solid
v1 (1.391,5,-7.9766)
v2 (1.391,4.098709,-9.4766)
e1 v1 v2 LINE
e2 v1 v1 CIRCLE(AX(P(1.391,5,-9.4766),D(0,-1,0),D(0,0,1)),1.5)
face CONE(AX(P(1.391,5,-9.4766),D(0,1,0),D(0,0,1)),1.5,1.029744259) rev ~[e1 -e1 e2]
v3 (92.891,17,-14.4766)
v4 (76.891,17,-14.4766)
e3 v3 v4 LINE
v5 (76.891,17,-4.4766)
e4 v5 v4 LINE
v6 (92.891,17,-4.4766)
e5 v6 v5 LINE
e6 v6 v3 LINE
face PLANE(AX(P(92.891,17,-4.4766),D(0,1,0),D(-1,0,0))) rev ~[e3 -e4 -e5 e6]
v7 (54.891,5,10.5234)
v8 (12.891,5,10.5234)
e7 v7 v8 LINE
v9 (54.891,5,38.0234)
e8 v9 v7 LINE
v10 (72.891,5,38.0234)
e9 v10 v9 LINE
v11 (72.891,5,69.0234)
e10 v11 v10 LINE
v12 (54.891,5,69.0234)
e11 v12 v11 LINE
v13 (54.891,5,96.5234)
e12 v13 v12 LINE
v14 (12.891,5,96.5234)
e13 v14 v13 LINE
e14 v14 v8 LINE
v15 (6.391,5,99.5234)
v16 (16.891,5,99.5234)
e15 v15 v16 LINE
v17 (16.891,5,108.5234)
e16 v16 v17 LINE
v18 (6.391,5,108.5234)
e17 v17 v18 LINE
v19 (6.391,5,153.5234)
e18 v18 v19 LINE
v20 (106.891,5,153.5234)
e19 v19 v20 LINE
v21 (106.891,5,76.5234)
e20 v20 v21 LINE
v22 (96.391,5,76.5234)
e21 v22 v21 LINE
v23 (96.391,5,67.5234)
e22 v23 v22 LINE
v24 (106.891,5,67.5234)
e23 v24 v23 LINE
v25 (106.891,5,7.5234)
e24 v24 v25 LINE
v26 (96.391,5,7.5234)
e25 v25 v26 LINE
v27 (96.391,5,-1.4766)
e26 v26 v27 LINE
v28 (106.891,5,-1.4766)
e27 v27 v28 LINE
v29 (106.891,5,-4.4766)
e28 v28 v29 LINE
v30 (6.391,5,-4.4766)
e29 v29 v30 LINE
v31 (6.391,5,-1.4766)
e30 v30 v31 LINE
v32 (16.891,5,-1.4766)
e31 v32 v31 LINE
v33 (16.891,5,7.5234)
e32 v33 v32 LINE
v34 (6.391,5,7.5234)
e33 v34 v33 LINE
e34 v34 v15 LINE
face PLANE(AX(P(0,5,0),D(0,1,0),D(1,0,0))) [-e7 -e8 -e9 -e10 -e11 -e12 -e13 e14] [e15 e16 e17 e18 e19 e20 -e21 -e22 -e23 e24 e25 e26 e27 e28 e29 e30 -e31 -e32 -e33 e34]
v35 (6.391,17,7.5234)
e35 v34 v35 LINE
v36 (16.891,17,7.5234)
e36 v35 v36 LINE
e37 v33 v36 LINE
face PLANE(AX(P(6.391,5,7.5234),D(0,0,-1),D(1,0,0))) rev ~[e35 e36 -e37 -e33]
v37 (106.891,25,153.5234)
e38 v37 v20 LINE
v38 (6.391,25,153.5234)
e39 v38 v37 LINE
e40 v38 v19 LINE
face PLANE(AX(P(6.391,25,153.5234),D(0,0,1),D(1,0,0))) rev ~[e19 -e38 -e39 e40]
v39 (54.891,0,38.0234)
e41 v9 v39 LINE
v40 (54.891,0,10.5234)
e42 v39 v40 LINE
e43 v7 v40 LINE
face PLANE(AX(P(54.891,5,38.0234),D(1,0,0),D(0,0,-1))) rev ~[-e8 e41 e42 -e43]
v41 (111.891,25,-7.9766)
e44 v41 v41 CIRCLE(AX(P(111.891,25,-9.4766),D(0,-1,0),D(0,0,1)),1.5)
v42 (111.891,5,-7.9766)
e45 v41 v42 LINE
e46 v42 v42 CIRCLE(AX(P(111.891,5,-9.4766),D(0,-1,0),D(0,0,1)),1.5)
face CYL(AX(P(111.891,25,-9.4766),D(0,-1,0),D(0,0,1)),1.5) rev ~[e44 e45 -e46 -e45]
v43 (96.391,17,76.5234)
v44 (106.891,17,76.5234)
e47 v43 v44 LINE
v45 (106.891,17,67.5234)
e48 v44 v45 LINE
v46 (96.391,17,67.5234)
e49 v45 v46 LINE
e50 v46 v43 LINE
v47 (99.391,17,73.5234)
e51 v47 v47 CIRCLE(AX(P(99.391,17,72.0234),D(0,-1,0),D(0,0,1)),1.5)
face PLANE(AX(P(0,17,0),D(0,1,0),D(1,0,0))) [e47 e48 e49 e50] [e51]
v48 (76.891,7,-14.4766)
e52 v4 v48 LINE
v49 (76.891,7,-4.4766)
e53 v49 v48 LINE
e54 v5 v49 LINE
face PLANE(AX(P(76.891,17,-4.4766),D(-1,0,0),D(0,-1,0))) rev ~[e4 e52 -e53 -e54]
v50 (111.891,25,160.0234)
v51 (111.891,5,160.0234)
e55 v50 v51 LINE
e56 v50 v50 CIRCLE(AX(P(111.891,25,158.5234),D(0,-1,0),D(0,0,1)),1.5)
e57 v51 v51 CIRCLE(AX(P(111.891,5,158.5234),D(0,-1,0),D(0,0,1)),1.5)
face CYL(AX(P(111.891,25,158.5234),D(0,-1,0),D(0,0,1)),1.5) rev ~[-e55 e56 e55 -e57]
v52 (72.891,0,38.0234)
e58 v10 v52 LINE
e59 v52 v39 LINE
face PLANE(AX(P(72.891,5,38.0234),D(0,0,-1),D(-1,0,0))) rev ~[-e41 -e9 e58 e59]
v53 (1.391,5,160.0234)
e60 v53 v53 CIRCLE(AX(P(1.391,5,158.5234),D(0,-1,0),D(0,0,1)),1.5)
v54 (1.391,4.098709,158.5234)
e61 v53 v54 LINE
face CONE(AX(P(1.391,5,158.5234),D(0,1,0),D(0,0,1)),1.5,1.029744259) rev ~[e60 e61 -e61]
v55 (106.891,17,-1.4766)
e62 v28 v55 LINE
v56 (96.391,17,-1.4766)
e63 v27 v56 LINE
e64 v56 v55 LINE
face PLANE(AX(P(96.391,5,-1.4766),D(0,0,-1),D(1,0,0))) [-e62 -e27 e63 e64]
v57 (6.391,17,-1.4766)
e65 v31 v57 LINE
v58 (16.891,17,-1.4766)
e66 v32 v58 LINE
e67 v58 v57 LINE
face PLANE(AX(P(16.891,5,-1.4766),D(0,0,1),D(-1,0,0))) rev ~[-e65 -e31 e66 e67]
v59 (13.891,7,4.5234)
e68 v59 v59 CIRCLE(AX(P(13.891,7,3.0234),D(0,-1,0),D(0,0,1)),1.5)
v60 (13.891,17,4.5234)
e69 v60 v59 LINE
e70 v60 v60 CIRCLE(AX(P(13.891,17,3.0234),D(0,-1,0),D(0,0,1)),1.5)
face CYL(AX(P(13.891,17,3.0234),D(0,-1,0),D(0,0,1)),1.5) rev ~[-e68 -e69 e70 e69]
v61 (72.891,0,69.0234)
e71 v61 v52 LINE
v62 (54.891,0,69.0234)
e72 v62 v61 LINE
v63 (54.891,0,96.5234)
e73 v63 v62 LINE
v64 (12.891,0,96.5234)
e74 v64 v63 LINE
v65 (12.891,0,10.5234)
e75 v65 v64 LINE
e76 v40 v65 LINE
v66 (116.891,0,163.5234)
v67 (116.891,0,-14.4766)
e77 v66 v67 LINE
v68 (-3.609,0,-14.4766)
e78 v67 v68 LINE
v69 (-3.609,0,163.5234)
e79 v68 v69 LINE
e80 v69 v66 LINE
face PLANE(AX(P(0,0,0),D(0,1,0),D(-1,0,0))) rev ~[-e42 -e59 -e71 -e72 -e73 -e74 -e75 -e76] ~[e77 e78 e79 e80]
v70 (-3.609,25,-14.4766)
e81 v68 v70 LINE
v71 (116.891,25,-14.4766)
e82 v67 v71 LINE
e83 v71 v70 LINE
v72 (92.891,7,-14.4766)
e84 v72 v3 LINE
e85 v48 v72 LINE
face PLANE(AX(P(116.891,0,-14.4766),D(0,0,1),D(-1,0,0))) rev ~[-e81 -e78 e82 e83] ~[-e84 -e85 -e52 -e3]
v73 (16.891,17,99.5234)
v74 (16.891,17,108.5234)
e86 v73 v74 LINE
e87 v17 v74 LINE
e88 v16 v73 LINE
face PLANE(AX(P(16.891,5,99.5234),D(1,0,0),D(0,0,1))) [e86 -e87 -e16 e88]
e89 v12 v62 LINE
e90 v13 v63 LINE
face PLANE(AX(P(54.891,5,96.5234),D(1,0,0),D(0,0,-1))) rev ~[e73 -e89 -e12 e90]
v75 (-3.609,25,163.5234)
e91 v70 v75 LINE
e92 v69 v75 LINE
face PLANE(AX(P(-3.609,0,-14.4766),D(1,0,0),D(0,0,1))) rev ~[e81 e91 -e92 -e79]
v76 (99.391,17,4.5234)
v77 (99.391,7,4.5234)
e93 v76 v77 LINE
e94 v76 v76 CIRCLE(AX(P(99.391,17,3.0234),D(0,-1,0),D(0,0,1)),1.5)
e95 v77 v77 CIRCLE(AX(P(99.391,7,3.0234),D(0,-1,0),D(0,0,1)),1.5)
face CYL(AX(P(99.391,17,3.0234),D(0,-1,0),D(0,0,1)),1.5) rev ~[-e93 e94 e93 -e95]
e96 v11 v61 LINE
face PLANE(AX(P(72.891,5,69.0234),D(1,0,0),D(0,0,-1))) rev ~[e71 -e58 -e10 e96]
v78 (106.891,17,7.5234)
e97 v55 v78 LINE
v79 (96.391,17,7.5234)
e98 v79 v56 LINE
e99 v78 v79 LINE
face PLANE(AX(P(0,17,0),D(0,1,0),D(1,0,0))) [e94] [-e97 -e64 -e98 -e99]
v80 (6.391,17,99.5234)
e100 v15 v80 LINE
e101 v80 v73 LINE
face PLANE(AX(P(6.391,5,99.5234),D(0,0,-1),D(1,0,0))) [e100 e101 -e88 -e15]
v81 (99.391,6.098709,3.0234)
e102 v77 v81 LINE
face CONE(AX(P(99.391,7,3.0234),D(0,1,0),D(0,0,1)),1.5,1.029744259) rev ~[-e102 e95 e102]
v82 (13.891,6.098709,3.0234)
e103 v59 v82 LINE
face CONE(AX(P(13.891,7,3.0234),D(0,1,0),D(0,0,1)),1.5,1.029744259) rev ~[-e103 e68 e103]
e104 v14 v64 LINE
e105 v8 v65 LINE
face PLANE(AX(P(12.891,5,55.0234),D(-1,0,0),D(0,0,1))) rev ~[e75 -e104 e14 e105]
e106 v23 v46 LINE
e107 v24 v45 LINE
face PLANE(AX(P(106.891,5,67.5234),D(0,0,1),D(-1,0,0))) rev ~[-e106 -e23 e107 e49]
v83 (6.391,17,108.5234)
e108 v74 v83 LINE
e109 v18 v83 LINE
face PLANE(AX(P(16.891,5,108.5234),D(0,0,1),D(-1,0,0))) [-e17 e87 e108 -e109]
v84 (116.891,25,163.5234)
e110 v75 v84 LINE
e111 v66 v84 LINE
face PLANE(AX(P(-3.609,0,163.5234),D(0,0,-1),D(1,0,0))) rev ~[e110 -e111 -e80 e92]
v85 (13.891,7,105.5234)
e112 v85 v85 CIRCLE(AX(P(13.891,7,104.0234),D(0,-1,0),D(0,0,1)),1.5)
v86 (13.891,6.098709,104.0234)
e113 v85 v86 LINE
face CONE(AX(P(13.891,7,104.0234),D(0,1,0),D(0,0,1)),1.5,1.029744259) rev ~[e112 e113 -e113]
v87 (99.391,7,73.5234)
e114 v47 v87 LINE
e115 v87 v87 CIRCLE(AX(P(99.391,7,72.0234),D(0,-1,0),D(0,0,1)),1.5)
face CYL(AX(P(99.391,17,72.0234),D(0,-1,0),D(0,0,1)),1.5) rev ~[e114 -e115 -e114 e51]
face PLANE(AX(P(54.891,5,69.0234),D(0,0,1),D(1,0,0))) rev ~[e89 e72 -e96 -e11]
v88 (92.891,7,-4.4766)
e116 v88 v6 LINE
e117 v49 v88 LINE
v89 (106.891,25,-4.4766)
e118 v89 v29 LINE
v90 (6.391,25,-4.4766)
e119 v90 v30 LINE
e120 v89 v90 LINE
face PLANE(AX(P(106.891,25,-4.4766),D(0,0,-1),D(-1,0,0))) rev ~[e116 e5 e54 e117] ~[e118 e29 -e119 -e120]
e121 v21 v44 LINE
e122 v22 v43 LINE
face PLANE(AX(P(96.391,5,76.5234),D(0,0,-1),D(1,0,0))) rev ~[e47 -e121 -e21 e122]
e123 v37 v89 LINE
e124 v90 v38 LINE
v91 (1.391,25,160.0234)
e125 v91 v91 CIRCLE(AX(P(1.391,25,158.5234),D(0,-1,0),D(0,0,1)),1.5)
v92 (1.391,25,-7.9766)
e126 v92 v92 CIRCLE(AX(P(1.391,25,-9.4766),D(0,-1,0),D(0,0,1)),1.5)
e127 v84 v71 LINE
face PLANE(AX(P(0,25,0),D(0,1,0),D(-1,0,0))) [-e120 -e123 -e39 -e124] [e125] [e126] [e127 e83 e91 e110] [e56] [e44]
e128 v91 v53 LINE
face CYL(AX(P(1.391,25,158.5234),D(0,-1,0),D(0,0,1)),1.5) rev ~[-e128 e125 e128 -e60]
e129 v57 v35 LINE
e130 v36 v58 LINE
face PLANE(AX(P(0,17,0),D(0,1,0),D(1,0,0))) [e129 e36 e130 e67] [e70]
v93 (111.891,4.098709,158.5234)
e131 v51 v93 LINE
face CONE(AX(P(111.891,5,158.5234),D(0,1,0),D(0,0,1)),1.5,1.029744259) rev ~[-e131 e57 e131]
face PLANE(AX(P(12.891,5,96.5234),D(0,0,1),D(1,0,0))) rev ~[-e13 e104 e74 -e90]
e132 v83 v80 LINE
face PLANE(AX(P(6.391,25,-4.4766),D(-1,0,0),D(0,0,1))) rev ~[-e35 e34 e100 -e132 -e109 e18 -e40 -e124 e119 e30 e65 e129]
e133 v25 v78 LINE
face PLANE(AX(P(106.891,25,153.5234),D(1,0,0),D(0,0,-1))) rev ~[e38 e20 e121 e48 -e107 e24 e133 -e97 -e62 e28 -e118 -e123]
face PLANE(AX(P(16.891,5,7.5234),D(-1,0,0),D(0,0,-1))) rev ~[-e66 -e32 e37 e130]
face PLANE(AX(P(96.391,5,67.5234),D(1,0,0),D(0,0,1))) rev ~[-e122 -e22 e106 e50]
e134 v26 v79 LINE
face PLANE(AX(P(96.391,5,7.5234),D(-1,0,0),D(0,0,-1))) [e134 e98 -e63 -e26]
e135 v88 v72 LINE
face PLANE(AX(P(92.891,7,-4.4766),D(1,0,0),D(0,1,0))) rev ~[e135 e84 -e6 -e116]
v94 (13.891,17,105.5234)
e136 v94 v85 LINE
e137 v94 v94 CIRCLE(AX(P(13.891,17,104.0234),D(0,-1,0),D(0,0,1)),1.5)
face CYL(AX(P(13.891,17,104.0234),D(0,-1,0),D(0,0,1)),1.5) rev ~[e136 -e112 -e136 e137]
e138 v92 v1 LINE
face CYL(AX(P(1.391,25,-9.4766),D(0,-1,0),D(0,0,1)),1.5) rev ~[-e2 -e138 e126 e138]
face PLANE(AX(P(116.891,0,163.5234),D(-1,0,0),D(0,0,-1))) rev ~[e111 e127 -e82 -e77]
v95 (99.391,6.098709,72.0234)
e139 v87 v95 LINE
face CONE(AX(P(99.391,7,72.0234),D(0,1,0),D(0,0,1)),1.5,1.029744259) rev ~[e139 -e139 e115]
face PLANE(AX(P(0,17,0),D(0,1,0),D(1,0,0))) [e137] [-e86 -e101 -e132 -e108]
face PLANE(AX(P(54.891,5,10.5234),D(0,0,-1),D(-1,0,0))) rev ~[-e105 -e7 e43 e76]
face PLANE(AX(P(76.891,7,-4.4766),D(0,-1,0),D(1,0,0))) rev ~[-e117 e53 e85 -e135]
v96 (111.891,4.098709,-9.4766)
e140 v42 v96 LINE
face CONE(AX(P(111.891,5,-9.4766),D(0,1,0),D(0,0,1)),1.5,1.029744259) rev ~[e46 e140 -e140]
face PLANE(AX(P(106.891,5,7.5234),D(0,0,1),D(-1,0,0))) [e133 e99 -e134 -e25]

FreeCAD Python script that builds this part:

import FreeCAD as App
import Part
import Sketcher

V = App.Vector

doc = App.newDocument("Part")
body = doc.addObject("PartDesign::Body", "Body")

# Sketch on XZ plane
sketch1 = body.newObject("Sketcher::SketchObject", "Sketch")
sketch1.AttachmentSupport = (doc.getObject("XZ_Plane"), [""])
sketch1.MapMode = "FlatFace"
sketch1.addGeometry([
    Part.LineSegment(V(-4, -14, 0), V(-4, 164, 0)),
    Part.LineSegment(V(-4, 164, 0), V(117, 164, 0)),
    Part.LineSegment(V(117, 164, 0), V(117, -14, 0)),
    Part.LineSegment(V(117, -14, 0), V(-4, -14, 0)),
], False)
sketch1.addConstraint([
    Sketcher.Constraint("Coincident", 0, 2, 1, 1),
    Sketcher.Constraint("Coincident", 1, 2, 2, 1),
    Sketcher.Constraint("Coincident", 2, 2, 3, 1),
    Sketcher.Constraint("Coincident", 3, 2, 0, 1),
    Sketcher.Constraint("Vertical", 0),
    Sketcher.Constraint("Horizontal", 1),
    Sketcher.Constraint("Vertical", 2),
    Sketcher.Constraint("Horizontal", 3),
    Sketcher.Constraint("DistanceY", 0, 1, 0, 2, 178.0),
    Sketcher.Constraint("DistanceX", 1, 1, 1, 2, 120.5),
    Sketcher.Constraint("DistanceX", 0, 2, -1, 1, 3.609),
    Sketcher.Constraint("DistanceY", -1, 1, 0, 2, 163.5234),
])
pad1 = body.newObject("PartDesign::Pad", "Pad")
pad1.Profile = sketch1
pad1.Length = 25
pad1.Reversed = True

# Sketch on XZ plane
sketch2 = body.newObject("Sketcher::SketchObject", "Sketch001")
sketch2.AttachmentSupport = (doc.getObject("XZ_Plane"), [""])
sketch2.MapMode = "FlatFace"
sketch2.AttachmentOffset = App.Placement(V(0, 0, -25), App.Rotation())
sketch2.addGeometry([
    Part.LineSegment(V(6, -4, 0), V(6, 154, 0)),
    Part.LineSegment(V(6, 154, 0), V(107, 154, 0)),
    Part.LineSegment(V(107, 154, 0), V(107, -4, 0)),
    Part.LineSegment(V(107, -4, 0), V(6, -4, 0)),
], False)
sketch2.addConstraint([
    Sketcher.Constraint("Coincident", 0, 2, 1, 1),
    Sketcher.Constraint("Coincident", 1, 2, 2, 1),
    Sketcher.Constraint("Coincident", 2, 2, 3, 1),
    Sketcher.Constraint("Coincident", 3, 2, 0, 1),
    Sketcher.Constraint("Vertical", 0),
    Sketcher.Constraint("Horizontal", 1),
    Sketcher.Constraint("Vertical", 2),
    Sketcher.Constraint("Horizontal", 3),
    Sketcher.Constraint("DistanceY", 0, 1, 0, 2, 158.0),
    Sketcher.Constraint("DistanceX", 1, 1, 1, 2, 100.5),
    Sketcher.Constraint("DistanceX", -1, 1, 0, 2, 6.391),
    Sketcher.Constraint("DistanceY", -1, 1, 0, 2, 153.5234),
])
pocket1 = body.newObject("PartDesign::Pocket", "Pocket")
pocket1.Profile = sketch2
pocket1.Length = 20
pocket1.Reversed = True

# Sketch on XZ plane
sketch3 = body.newObject("Sketcher::SketchObject", "Sketch002")
sketch3.AttachmentSupport = (doc.getObject("XZ_Plane"), [""])
sketch3.MapMode = "FlatFace"
sketch3.AttachmentOffset = App.Placement(V(0, 0, -5), App.Rotation())
sketch3.addGeometry([
    Part.LineSegment(V(13, 97, 0), V(55, 97, 0)),  # 0
    Part.LineSegment(V(55, 97, 0), V(55, 69, 0)),  # 1
    Part.LineSegment(V(55, 69, 0), V(73, 69, 0)),  # 2
    Part.LineSegment(V(73, 69, 0), V(73, 38, 0)),  # 3
    Part.LineSegment(V(73, 38, 0), V(55, 38, 0)),  # 4
    Part.LineSegment(V(55, 38, 0), V(55, 11, 0)),  # 5
    Part.LineSegment(V(55, 11, 0), V(13, 11, 0)),  # 6
    Part.LineSegment(V(13, 11, 0), V(13, 97, 0)),  # 7
], False)
sketch3.addConstraint([
    Sketcher.Constraint("Coincident", 0, 2, 1, 1),
    Sketcher.Constraint("Coincident", 1, 2, 2, 1),
    Sketcher.Constraint("Coincident", 2, 2, 3, 1),
    Sketcher.Constraint("Coincident", 3, 2, 4, 1),
    Sketcher.Constraint("Coincident", 4, 2, 5, 1),
    Sketcher.Constraint("Coincident", 5, 2, 6, 1),
    Sketcher.Constraint("Coincident", 6, 2, 7, 1),
    Sketcher.Constraint("Coincident", 7, 2, 0, 1),
    Sketcher.Constraint("Horizontal", 0),
    Sketcher.Constraint("Vertical", 1),
    Sketcher.Constraint("Horizontal", 2),
    Sketcher.Constraint("Vertical", 3),
    Sketcher.Constraint("Horizontal", 4),
    Sketcher.Constraint("Vertical", 5),
    Sketcher.Constraint("Horizontal", 6),
    Sketcher.Constraint("Vertical", 7),
    Sketcher.Constraint("Vertical", 1, 2, 4, 2),
    Sketcher.Constraint("Equal", 1, 5),
    Sketcher.Constraint("DistanceX", 0, 1, 0, 2, 42.0),
    Sketcher.Constraint("DistanceX", 2, 1, 2, 2, 18.0),
    Sketcher.Constraint("DistanceY", 3, 2, 3, 1, 31.0),
    Sketcher.Constraint("DistanceY", 7, 1, 7, 2, 86.0),
    Sketcher.Constraint("DistanceX", -1, 1, 0, 2, 54.891),
    Sketcher.Constraint("DistanceY", -1, 1, 0, 2, 96.5234),
])
pocket2 = body.newObject("PartDesign::Pocket", "Pocket001")
pocket2.Profile = sketch3
pocket2.Type = "ThroughAll"
pocket2.Reversed = True

# Sketch on XZ plane
sketch4 = body.newObject("Sketcher::SketchObject", "Sketch003")
sketch4.AttachmentSupport = (doc.getObject("XZ_Plane"), [""])
sketch4.MapMode = "FlatFace"
sketch4.AttachmentOffset = App.Placement(V(0, 0, -5), App.Rotation())
sketch4.addGeometry([
    Part.LineSegment(V(6, -1, 0), V(6, 8, 0)),  # 0
    Part.LineSegment(V(6, 8, 0), V(17, 8, 0)),  # 1
    Part.LineSegment(V(17, 8, 0), V(17, -1, 0)),  # 2
    Part.LineSegment(V(17, -1, 0), V(6, -1, 0)),  # 3
    Part.LineSegment(V(17, 100, 0), V(6, 100, 0)),  # 4
    Part.LineSegment(V(6, 100, 0), V(6, 109, 0)),  # 5
    Part.LineSegment(V(6, 109, 0), V(17, 109, 0)),  # 6
    Part.LineSegment(V(17, 109, 0), V(17, 100, 0)),  # 7
    Part.LineSegment(V(96, 8, 0), V(107, 8, 0)),  # 8
    Part.LineSegment(V(107, 8, 0), V(107, -1, 0)),  # 9
    Part.LineSegment(V(107, -1, 0), V(96, -1, 0)),  # 10
    Part.LineSegment(V(96, -1, 0), V(96, 8, 0)),  # 11
    Part.LineSegment(V(107, 77, 0), V(107, 68, 0)),  # 12
    Part.LineSegment(V(107, 68, 0), V(96, 68, 0)),  # 13
    Part.LineSegment(V(96, 68, 0), V(96, 77, 0)),  # 14
    Part.LineSegment(V(96, 77, 0), V(107, 77, 0)),  # 15
], False)
sketch4.addConstraint([
    Sketcher.Constraint("Coincident", 0, 2, 1, 1),
    Sketcher.Constraint("Coincident", 1, 2, 2, 1),
    Sketcher.Constraint("Coincident", 2, 2, 3, 1),
    Sketcher.Constraint("Coincident", 3, 2, 0, 1),
    Sketcher.Constraint("Coincident", 4, 2, 5, 1),
    Sketcher.Constraint("Coincident", 5, 2, 6, 1),
    Sketcher.Constraint("Coincident", 6, 2, 7, 1),
    Sketcher.Constraint("Coincident", 7, 2, 4, 1),
    Sketcher.Constraint("Coincident", 8, 2, 9, 1),
    Sketcher.Constraint("Coincident", 9, 2, 10, 1),
    Sketcher.Constraint("Coincident", 10, 2, 11, 1),
    Sketcher.Constraint("Coincident", 11, 2, 8, 1),
    Sketcher.Constraint("Coincident", 12, 2, 13, 1),
    Sketcher.Constraint("Coincident", 13, 2, 14, 1),
    Sketcher.Constraint("Coincident", 14, 2, 15, 1),
    Sketcher.Constraint("Coincident", 15, 2, 12, 1),
    Sketcher.Constraint("Vertical", 0),
    Sketcher.Constraint("Horizontal", 1),
    Sketcher.Constraint("Vertical", 2),
    Sketcher.Constraint("Horizontal", 3),
    Sketcher.Constraint("Horizontal", 4),
    Sketcher.Constraint("Vertical", 5),
    Sketcher.Constraint("Horizontal", 6),
    Sketcher.Constraint("Vertical", 7),
    Sketcher.Constraint("Horizontal", 8),
    Sketcher.Constraint("Vertical", 9),
    Sketcher.Constraint("Horizontal", 10),
    Sketcher.Constraint("Vertical", 11),
    Sketcher.Constraint("Vertical", 12),
    Sketcher.Constraint("Horizontal", 13),
    Sketcher.Constraint("Vertical", 14),
    Sketcher.Constraint("Horizontal", 15),
    Sketcher.Constraint("Horizontal", 1, 2, 8, 2),
    Sketcher.Constraint("Horizontal", 3, 2, 9, 2),
    Sketcher.Constraint("Vertical", 3, 2, 4, 2),
    Sketcher.Constraint("Vertical", 2, 2, 6, 2),
    Sketcher.Constraint("Vertical", 9, 2, 12, 2),
    Sketcher.Constraint("Vertical", 11, 2, 13, 2),
    Sketcher.Constraint("Equal", 6, 8),
    Sketcher.Constraint("Equal", 2, 5),
    Sketcher.Constraint("Equal", 11, 12),
    Sketcher.Constraint("DistanceY", 0, 1, 0, 2, 9.0),
    Sketcher.Constraint("DistanceX", 1, 1, 1, 2, 10.5),
    Sketcher.Constraint("DistanceY", 0, 2, 4, 2, 92.0),
    Sketcher.Constraint("DistanceX", 1, 2, 8, 2, 90.0),
    Sketcher.Constraint("DistanceY", 8, 2, 12, 2, 60.0),
    Sketcher.Constraint("DistanceX", -1, 1, 0, 2, 6.391),
    Sketcher.Constraint("DistanceY", -1, 1, 0, 2, 7.5234),
])
pad2 = body.newObject("PartDesign::Pad", "Pad001")
pad2.Profile = sketch4
pad2.Length = 12
pad2.Reversed = True

# Sketch on XZ plane
sketch5 = body.newObject("Sketcher::SketchObject", "Sketch004")
sketch5.AttachmentSupport = (doc.getObject("XZ_Plane"), [""])
sketch5.MapMode = "FlatFace"
sketch5.AttachmentOffset = App.Placement(V(0, 0, -17), App.Rotation())
sketch5.addGeometry([
    Part.Circle(V(13.9, 3, 0), V(0, 0, 1), 1.5),
    Part.Circle(V(13.9, 104, 0), V(0, 0, 1), 1.5),
    Part.Circle(V(99.4, 72, 0), V(0, 0, 1), 1.5),
    Part.Circle(V(99.4, 3, 0), V(0, 0, 1), 1.5),
], False)
sketch5.addConstraint([
    Sketcher.Constraint("Equal", 0, 1),
    Sketcher.Constraint("Equal", 1, 2),
    Sketcher.Constraint("Equal", 2, 3),
    Sketcher.Constraint("Horizontal", 0, 3, 3, 3),
    Sketcher.Constraint("Vertical", 0, 3, 1, 3),
    Sketcher.Constraint("Vertical", 2, 3, 3, 3),
    Sketcher.Constraint("Diameter", 0, 3.0),
    Sketcher.Constraint("DistanceY", 0, 3, 1, 3, 101.0),
    Sketcher.Constraint("DistanceY", 2, 3, 1, 3, 32.0),
    Sketcher.Constraint("DistanceX", 1, 3, 2, 3, 85.5),
    Sketcher.Constraint("DistanceX", -1, 1, 0, 3, 13.891),
    Sketcher.Constraint("DistanceY", -1, 1, 0, 3, 3.0234),
])
doc.recompute()
hole = body.newObject("PartDesign::Hole", "Hole")
hole.Profile = sketch5
hole.ThreadType = "None"
hole.Diameter = 3
hole.DepthType = "Dimension"
hole.Depth = 10
hole.DrillPoint = "Angled"
hole.DrillPointAngle = 118
hole.Reversed = True

# Sketch on XZ plane
sketch6 = body.newObject("Sketcher::SketchObject", "Sketch005")
sketch6.AttachmentSupport = (doc.getObject("XZ_Plane"), [""])
sketch6.MapMode = "FlatFace"
sketch6.AttachmentOffset = App.Placement(V(0, 0, -25), App.Rotation())
sketch6.addGeometry([
    Part.Circle(V(1.4, 158.5, 0), V(0, 0, 1), 1.5),
    Part.Circle(V(1.4, -9.5, 0), V(0, 0, 1), 1.5),
    Part.Circle(V(111.9, -9.5, 0), V(0, 0, 1), 1.5),
    Part.Circle(V(111.9, 158.5, 0), V(0, 0, 1), 1.5),
], False)
sketch6.addConstraint([
    Sketcher.Constraint("Equal", 0, 1),
    Sketcher.Constraint("Equal", 1, 2),
    Sketcher.Constraint("Equal", 2, 3),
    Sketcher.Constraint("Horizontal", 1, 3, 2, 3),
    Sketcher.Constraint("Horizontal", 0, 3, 3, 3),
    Sketcher.Constraint("Vertical", 0, 3, 1, 3),
    Sketcher.Constraint("Vertical", 2, 3, 3, 3),
    Sketcher.Constraint("Diameter", 0, 3.0),
    Sketcher.Constraint("DistanceY", 1, 3, 0, 3, 168.0),
    Sketcher.Constraint("DistanceX", 1, 3, 2, 3, 110.5),
    Sketcher.Constraint("DistanceX", -1, 1, 0, 3, 1.391),
    Sketcher.Constraint("DistanceY", -1, 1, 0, 3, 158.5234),
])
doc.recompute()
hole2 = body.newObject("PartDesign::Hole", "Hole001")
hole2.Profile = sketch6
hole2.ThreadType = "None"
hole2.Diameter = 3
hole2.DepthType = "Dimension"
hole2.Depth = 20
hole2.DrillPoint = "Angled"
hole2.DrillPointAngle = 118
hole2.Reversed = True

# Sketch on XY plane
sketch7 = body.newObject("Sketcher::SketchObject", "Sketch006")
sketch7.AttachmentSupport = (doc.getObject("XY_Plane"), [""])
sketch7.MapMode = "FlatFace"
sketch7.AttachmentOffset = App.Placement(V(0, 0, -4.4766), App.Rotation())
sketch7.addGeometry([
    Part.LineSegment(V(77, 17, 0), V(77, 7, 0)),
    Part.LineSegment(V(77, 7, 0), V(93, 7, 0)),
    Part.LineSegment(V(93, 7, 0), V(93, 17, 0)),
    Part.LineSegment(V(93, 17, 0), V(77, 17, 0)),
], False)
sketch7.addConstraint([
    Sketcher.Constraint("Coincident", 0, 2, 1, 1),
    Sketcher.Constraint("Coincident", 1, 2, 2, 1),
    Sketcher.Constraint("Coincident", 2, 2, 3, 1),
    Sketcher.Constraint("Coincident", 3, 2, 0, 1),
    Sketcher.Constraint("Vertical", 0),
    Sketcher.Constraint("Horizontal", 1),
    Sketcher.Constraint("Vertical", 2),
    Sketcher.Constraint("Horizontal", 3),
    Sketcher.Constraint("DistanceX", 1, 1, 1, 2, 16.0),
    Sketcher.Constraint("DistanceY", 0, 2, 0, 1, 10.0),
    Sketcher.Constraint("DistanceY", -1, 1, 0, 2, 7.0),
    Sketcher.Constraint("DistanceX", -1, 1, 0, 2, 76.891),
])
pocket3 = body.newObject("PartDesign::Pocket", "Pocket002")
pocket3.Profile = sketch7
pocket3.Type = "ThroughAll"

doc.recompute()
